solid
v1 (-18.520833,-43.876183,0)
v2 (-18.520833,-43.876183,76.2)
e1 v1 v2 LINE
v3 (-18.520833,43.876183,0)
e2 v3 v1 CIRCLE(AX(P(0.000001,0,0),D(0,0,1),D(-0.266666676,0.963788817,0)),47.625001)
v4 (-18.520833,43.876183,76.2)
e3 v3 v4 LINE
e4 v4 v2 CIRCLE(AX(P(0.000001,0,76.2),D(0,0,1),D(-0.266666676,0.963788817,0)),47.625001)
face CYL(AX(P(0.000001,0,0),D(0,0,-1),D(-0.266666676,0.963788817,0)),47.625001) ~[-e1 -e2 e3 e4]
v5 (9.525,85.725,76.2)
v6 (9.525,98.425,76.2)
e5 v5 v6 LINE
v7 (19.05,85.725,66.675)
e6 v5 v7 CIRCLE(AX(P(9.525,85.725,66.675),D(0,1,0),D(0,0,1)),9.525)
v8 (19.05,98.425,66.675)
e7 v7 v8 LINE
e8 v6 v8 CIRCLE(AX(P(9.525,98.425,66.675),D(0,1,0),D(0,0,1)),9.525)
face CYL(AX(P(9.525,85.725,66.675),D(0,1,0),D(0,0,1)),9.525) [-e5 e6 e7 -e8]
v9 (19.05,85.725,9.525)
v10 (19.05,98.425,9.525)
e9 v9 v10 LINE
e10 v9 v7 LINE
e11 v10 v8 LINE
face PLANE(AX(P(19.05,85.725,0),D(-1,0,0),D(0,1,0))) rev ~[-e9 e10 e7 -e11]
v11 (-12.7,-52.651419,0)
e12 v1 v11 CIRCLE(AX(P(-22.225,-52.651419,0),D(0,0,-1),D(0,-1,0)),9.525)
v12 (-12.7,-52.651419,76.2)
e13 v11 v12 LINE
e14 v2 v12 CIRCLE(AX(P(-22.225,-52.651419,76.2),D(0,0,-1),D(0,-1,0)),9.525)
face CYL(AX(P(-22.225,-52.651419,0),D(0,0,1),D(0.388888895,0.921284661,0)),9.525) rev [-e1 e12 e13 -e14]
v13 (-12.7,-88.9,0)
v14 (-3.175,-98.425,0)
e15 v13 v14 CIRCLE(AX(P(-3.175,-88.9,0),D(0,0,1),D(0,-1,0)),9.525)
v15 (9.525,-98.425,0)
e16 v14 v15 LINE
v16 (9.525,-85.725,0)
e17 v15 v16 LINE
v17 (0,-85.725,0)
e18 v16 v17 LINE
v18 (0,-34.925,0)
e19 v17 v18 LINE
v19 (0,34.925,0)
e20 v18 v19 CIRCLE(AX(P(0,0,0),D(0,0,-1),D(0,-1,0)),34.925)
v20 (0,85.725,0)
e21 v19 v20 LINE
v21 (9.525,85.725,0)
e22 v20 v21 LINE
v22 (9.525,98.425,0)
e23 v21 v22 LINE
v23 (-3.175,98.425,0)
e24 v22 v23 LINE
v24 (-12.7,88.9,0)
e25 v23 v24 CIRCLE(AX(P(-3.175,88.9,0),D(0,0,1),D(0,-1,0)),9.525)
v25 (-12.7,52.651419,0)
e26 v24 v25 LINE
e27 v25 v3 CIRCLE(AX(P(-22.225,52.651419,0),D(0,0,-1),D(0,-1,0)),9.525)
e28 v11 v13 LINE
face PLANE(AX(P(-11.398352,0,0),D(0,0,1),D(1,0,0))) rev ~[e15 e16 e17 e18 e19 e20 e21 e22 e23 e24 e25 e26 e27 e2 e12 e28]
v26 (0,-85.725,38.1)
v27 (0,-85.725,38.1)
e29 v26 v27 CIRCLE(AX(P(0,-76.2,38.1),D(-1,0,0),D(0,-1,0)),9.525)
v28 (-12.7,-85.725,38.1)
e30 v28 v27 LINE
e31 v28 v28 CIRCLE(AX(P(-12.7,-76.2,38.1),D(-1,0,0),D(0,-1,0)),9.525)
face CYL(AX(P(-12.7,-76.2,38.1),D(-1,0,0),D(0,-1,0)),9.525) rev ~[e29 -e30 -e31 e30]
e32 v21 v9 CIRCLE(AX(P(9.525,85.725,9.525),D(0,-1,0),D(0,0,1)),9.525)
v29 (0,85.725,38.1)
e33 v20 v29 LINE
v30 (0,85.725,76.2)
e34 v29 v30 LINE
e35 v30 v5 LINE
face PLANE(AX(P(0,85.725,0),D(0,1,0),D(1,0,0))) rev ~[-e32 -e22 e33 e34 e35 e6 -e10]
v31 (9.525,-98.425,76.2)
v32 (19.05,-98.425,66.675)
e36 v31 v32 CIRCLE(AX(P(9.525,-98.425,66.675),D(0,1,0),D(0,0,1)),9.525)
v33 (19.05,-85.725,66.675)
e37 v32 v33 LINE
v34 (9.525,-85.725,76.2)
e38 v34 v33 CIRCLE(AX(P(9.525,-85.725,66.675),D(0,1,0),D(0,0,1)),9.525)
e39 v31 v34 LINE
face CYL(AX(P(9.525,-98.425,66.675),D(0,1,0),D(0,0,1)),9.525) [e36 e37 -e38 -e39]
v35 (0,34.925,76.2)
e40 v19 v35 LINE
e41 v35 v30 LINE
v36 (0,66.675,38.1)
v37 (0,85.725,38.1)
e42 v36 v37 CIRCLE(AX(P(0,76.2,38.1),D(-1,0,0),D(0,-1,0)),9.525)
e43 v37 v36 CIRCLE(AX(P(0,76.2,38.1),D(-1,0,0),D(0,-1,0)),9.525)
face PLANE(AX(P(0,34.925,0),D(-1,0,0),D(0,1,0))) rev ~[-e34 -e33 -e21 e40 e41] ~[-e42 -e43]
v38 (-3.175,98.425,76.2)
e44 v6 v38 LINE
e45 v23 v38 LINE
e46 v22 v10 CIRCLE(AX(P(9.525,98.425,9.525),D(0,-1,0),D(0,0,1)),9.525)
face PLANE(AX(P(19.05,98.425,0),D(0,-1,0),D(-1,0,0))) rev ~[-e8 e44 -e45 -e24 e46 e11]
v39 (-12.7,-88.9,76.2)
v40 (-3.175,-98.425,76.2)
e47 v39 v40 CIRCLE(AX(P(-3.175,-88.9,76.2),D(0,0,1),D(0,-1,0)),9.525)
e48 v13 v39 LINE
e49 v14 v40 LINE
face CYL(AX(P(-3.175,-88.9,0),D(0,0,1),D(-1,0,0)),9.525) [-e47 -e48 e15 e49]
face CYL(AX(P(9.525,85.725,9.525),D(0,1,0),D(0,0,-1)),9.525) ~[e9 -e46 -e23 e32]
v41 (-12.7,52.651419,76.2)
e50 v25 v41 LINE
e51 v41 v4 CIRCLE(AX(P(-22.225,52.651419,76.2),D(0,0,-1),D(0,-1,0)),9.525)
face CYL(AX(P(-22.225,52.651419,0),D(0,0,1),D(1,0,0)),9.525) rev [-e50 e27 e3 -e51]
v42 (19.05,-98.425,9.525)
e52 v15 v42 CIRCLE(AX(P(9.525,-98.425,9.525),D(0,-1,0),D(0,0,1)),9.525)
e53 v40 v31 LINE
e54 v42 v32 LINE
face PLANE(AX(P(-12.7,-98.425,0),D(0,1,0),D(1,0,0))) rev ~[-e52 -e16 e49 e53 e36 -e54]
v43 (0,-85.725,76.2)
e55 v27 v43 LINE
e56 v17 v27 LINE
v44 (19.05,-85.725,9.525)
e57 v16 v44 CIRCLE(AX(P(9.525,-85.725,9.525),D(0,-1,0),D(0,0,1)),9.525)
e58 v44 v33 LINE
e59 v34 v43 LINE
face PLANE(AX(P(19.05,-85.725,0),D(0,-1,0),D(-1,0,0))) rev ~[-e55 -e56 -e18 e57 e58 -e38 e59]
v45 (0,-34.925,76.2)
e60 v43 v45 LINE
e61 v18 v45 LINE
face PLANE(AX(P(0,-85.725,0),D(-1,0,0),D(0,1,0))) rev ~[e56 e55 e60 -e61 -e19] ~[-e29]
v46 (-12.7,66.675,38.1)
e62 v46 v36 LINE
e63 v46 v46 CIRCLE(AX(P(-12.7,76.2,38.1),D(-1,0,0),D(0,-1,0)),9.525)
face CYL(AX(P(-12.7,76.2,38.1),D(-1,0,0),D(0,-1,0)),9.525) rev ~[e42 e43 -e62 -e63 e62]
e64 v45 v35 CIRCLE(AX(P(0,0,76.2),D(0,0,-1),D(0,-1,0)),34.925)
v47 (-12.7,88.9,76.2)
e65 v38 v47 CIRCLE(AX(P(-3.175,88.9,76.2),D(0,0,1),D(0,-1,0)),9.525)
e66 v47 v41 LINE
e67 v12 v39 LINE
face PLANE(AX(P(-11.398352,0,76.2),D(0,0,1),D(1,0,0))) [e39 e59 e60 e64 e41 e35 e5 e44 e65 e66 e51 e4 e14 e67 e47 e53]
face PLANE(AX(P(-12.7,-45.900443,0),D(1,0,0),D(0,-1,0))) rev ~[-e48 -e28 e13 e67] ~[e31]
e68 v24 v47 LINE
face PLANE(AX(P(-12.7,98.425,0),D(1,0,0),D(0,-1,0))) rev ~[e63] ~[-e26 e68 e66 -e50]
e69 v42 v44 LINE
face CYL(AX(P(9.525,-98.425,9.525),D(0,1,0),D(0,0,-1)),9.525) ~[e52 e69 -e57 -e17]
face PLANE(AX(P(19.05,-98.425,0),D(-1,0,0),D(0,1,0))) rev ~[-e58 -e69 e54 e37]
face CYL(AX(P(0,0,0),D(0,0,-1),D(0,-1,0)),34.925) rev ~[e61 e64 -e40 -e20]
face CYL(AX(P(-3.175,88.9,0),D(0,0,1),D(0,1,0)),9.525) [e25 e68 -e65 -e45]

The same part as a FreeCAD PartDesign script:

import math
import FreeCAD as App
import Part
import Sketcher

V = App.Vector
Q = App.Units.Quantity


def edges_at(feature, points):
    """Names of the edges that pass closest to the given points."""
    edges = feature.Shape.Edges
    near = lambda p: min(range(len(edges)), key=lambda i: edges[i].distToShape(Part.Vertex(*p))[0])
    return sorted({f"Edge{near(p) + 1}" for p in points})

doc = App.newDocument("Part")
body = doc.addObject("PartDesign::Body", "Body")

# Sketch on XY plane
sketch1 = body.newObject("Sketcher::SketchObject", "Sketch")
sketch1.AttachmentSupport = (doc.getObject("XY_Plane"), [""])
sketch1.MapMode = "FlatFace"
sketch1.addGeometry([
    Part.ArcOfCircle(Part.Circle(V(0, 0, 0), V(0, 0, 1), 35), math.radians(90), math.radians(270)),  # 0
    Part.LineSegment(V(0, 35, 0), V(0, 86, 0)),  # 1
    Part.LineSegment(V(0, 86, 0), V(19, 86, 0)),  # 2
    Part.LineSegment(V(19, 86, 0), V(19, 98, 0)),  # 3
    Part.LineSegment(V(19, 98, 0), V(-13, 98, 0)),  # 4
    Part.LineSegment(V(-13, 98, 0), V(-13, 46, 0)),  # 5
    Part.ArcOfCircle(Part.Circle(V(0, 0, 0), V(0, 0, 1), 48), math.radians(105), math.radians(255)),  # 6
    Part.LineSegment(V(-13, -46, 0), V(-13, -98, 0)),  # 7
    Part.LineSegment(V(-13, -98, 0), V(19, -98, 0)),  # 8
    Part.LineSegment(V(19, -98, 0), V(19, -86, 0)),  # 9
    Part.LineSegment(V(19, -86, 0), V(0, -86, 0)),  # 10
    Part.LineSegment(V(0, -86, 0), V(0, -35, 0)),  # 11
], False)
sketch1.addConstraint([
    Sketcher.Constraint("Coincident", 0, 1, 1, 1),
    Sketcher.Constraint("Coincident", 1, 2, 2, 1),
    Sketcher.Constraint("Coincident", 2, 2, 3, 1),
    Sketcher.Constraint("Coincident", 3, 2, 4, 1),
    Sketcher.Constraint("Coincident", 4, 2, 5, 1),
    Sketcher.Constraint("Coincident", 5, 2, 6, 1),
    Sketcher.Constraint("Coincident", 6, 2, 7, 1),
    Sketcher.Constraint("Coincident", 7, 2, 8, 1),
    Sketcher.Constraint("Coincident", 8, 2, 9, 1),
    Sketcher.Constraint("Coincident", 9, 2, 10, 1),
    Sketcher.Constraint("Coincident", 10, 2, 11, 1),
    Sketcher.Constraint("Coincident", 11, 2, 0, 2),
    Sketcher.Constraint("Vertical", 1),
    Sketcher.Constraint("Horizontal", 2),
    Sketcher.Constraint("Vertical", 3),
    Sketcher.Constraint("Horizontal", 4),
    Sketcher.Constraint("Vertical", 5),
    Sketcher.Constraint("Vertical", 7),
    Sketcher.Constraint("Horizontal", 8),
    Sketcher.Constraint("Vertical", 9),
    Sketcher.Constraint("Horizontal", 10),
    Sketcher.Constraint("Vertical", 11),
    Sketcher.Constraint("Coincident", 0, 3, -1, 1),
    Sketcher.Constraint("Coincident", 6, 3, -1, 1),
    Sketcher.Constraint("Symmetric", 1, 2, 10, 2, -1, 1),
    Sketcher.Constraint("Symmetric", 4, 2, 7, 2, -1),
    Sketcher.Constraint("PointOnObject", 0, 1, -2),
    Sketcher.Constraint("Vertical", 3, 2, 8, 2),
    Sketcher.Constraint("DistanceY", 1, 1, 1, 2, Q("2 in")),
    Sketcher.Constraint("DistanceY", 3, 1, 3, 2, Q("0.5 in")),
    Sketcher.Constraint("Radius", 0, Q("1.375 in")),
    Sketcher.Constraint("Radius", 6, Q("1.875 in")),
    Sketcher.Constraint("DistanceX", 2, 1, 2, 2, Q("0.75 in")),
    Sketcher.Constraint("DistanceX", 4, 2, 4, 1, Q("1.25 in")),
])
pad1 = body.newObject("PartDesign::Pad", "Pad")
pad1.Profile = sketch1
pad1.Length = Q("3 in")

# Sketch on YZ plane
sketch2 = body.newObject("Sketcher::SketchObject", "Sketch001")
sketch2.AttachmentSupport = (doc.getObject("YZ_Plane"), [""])
sketch2.MapMode = "FlatFace"
sketch2.AttachmentOffset = App.Placement(V(0, 0, -0.5 * 25.4), App.Rotation())
sketch2.addGeometry([
    Part.Circle(V(76, 38, 0), V(0, 0, 1), 10),
    Part.Circle(V(-76, 38, 0), V(0, 0, 1), 10),
], False)
sketch2.addConstraint([
    Sketcher.Constraint("Equal", 0, 1),
    Sketcher.Constraint("Symmetric", 0, 3, 1, 3, -2),
    Sketcher.Constraint("Diameter", 0, Q("0.75 in")),
    Sketcher.Constraint("DistanceX", -1, 1, 0, 3, Q("3 in")),
    Sketcher.Constraint("DistanceY", -1, 1, 0, 3, Q("1.5 in")),
])
pocket1 = body.newObject("PartDesign::Pocket", "Pocket")
pocket1.Profile = sketch2
pocket1.Length = Q("1 in")
pocket1.Reversed = True
doc.recompute()

fillet = body.newObject("PartDesign::Fillet", "Fillet")
fillet.Base = (pocket1, edges_at(pocket1, [
    (-12.7, -45.9, 38.1),
    (-12.7, 45.9, 38.1),
    (-12.7, 98.425, 38.1),
    (-12.7, -98.425, 38.1),
    (19.05, -92.075, 0),
    (19.05, 92.075, 0),
    (19.05, 92.075, 76.2),
    (19.05, -92.075, 76.2),
]))
fillet.Radius = Q("0.375 in")

doc.recompute()
